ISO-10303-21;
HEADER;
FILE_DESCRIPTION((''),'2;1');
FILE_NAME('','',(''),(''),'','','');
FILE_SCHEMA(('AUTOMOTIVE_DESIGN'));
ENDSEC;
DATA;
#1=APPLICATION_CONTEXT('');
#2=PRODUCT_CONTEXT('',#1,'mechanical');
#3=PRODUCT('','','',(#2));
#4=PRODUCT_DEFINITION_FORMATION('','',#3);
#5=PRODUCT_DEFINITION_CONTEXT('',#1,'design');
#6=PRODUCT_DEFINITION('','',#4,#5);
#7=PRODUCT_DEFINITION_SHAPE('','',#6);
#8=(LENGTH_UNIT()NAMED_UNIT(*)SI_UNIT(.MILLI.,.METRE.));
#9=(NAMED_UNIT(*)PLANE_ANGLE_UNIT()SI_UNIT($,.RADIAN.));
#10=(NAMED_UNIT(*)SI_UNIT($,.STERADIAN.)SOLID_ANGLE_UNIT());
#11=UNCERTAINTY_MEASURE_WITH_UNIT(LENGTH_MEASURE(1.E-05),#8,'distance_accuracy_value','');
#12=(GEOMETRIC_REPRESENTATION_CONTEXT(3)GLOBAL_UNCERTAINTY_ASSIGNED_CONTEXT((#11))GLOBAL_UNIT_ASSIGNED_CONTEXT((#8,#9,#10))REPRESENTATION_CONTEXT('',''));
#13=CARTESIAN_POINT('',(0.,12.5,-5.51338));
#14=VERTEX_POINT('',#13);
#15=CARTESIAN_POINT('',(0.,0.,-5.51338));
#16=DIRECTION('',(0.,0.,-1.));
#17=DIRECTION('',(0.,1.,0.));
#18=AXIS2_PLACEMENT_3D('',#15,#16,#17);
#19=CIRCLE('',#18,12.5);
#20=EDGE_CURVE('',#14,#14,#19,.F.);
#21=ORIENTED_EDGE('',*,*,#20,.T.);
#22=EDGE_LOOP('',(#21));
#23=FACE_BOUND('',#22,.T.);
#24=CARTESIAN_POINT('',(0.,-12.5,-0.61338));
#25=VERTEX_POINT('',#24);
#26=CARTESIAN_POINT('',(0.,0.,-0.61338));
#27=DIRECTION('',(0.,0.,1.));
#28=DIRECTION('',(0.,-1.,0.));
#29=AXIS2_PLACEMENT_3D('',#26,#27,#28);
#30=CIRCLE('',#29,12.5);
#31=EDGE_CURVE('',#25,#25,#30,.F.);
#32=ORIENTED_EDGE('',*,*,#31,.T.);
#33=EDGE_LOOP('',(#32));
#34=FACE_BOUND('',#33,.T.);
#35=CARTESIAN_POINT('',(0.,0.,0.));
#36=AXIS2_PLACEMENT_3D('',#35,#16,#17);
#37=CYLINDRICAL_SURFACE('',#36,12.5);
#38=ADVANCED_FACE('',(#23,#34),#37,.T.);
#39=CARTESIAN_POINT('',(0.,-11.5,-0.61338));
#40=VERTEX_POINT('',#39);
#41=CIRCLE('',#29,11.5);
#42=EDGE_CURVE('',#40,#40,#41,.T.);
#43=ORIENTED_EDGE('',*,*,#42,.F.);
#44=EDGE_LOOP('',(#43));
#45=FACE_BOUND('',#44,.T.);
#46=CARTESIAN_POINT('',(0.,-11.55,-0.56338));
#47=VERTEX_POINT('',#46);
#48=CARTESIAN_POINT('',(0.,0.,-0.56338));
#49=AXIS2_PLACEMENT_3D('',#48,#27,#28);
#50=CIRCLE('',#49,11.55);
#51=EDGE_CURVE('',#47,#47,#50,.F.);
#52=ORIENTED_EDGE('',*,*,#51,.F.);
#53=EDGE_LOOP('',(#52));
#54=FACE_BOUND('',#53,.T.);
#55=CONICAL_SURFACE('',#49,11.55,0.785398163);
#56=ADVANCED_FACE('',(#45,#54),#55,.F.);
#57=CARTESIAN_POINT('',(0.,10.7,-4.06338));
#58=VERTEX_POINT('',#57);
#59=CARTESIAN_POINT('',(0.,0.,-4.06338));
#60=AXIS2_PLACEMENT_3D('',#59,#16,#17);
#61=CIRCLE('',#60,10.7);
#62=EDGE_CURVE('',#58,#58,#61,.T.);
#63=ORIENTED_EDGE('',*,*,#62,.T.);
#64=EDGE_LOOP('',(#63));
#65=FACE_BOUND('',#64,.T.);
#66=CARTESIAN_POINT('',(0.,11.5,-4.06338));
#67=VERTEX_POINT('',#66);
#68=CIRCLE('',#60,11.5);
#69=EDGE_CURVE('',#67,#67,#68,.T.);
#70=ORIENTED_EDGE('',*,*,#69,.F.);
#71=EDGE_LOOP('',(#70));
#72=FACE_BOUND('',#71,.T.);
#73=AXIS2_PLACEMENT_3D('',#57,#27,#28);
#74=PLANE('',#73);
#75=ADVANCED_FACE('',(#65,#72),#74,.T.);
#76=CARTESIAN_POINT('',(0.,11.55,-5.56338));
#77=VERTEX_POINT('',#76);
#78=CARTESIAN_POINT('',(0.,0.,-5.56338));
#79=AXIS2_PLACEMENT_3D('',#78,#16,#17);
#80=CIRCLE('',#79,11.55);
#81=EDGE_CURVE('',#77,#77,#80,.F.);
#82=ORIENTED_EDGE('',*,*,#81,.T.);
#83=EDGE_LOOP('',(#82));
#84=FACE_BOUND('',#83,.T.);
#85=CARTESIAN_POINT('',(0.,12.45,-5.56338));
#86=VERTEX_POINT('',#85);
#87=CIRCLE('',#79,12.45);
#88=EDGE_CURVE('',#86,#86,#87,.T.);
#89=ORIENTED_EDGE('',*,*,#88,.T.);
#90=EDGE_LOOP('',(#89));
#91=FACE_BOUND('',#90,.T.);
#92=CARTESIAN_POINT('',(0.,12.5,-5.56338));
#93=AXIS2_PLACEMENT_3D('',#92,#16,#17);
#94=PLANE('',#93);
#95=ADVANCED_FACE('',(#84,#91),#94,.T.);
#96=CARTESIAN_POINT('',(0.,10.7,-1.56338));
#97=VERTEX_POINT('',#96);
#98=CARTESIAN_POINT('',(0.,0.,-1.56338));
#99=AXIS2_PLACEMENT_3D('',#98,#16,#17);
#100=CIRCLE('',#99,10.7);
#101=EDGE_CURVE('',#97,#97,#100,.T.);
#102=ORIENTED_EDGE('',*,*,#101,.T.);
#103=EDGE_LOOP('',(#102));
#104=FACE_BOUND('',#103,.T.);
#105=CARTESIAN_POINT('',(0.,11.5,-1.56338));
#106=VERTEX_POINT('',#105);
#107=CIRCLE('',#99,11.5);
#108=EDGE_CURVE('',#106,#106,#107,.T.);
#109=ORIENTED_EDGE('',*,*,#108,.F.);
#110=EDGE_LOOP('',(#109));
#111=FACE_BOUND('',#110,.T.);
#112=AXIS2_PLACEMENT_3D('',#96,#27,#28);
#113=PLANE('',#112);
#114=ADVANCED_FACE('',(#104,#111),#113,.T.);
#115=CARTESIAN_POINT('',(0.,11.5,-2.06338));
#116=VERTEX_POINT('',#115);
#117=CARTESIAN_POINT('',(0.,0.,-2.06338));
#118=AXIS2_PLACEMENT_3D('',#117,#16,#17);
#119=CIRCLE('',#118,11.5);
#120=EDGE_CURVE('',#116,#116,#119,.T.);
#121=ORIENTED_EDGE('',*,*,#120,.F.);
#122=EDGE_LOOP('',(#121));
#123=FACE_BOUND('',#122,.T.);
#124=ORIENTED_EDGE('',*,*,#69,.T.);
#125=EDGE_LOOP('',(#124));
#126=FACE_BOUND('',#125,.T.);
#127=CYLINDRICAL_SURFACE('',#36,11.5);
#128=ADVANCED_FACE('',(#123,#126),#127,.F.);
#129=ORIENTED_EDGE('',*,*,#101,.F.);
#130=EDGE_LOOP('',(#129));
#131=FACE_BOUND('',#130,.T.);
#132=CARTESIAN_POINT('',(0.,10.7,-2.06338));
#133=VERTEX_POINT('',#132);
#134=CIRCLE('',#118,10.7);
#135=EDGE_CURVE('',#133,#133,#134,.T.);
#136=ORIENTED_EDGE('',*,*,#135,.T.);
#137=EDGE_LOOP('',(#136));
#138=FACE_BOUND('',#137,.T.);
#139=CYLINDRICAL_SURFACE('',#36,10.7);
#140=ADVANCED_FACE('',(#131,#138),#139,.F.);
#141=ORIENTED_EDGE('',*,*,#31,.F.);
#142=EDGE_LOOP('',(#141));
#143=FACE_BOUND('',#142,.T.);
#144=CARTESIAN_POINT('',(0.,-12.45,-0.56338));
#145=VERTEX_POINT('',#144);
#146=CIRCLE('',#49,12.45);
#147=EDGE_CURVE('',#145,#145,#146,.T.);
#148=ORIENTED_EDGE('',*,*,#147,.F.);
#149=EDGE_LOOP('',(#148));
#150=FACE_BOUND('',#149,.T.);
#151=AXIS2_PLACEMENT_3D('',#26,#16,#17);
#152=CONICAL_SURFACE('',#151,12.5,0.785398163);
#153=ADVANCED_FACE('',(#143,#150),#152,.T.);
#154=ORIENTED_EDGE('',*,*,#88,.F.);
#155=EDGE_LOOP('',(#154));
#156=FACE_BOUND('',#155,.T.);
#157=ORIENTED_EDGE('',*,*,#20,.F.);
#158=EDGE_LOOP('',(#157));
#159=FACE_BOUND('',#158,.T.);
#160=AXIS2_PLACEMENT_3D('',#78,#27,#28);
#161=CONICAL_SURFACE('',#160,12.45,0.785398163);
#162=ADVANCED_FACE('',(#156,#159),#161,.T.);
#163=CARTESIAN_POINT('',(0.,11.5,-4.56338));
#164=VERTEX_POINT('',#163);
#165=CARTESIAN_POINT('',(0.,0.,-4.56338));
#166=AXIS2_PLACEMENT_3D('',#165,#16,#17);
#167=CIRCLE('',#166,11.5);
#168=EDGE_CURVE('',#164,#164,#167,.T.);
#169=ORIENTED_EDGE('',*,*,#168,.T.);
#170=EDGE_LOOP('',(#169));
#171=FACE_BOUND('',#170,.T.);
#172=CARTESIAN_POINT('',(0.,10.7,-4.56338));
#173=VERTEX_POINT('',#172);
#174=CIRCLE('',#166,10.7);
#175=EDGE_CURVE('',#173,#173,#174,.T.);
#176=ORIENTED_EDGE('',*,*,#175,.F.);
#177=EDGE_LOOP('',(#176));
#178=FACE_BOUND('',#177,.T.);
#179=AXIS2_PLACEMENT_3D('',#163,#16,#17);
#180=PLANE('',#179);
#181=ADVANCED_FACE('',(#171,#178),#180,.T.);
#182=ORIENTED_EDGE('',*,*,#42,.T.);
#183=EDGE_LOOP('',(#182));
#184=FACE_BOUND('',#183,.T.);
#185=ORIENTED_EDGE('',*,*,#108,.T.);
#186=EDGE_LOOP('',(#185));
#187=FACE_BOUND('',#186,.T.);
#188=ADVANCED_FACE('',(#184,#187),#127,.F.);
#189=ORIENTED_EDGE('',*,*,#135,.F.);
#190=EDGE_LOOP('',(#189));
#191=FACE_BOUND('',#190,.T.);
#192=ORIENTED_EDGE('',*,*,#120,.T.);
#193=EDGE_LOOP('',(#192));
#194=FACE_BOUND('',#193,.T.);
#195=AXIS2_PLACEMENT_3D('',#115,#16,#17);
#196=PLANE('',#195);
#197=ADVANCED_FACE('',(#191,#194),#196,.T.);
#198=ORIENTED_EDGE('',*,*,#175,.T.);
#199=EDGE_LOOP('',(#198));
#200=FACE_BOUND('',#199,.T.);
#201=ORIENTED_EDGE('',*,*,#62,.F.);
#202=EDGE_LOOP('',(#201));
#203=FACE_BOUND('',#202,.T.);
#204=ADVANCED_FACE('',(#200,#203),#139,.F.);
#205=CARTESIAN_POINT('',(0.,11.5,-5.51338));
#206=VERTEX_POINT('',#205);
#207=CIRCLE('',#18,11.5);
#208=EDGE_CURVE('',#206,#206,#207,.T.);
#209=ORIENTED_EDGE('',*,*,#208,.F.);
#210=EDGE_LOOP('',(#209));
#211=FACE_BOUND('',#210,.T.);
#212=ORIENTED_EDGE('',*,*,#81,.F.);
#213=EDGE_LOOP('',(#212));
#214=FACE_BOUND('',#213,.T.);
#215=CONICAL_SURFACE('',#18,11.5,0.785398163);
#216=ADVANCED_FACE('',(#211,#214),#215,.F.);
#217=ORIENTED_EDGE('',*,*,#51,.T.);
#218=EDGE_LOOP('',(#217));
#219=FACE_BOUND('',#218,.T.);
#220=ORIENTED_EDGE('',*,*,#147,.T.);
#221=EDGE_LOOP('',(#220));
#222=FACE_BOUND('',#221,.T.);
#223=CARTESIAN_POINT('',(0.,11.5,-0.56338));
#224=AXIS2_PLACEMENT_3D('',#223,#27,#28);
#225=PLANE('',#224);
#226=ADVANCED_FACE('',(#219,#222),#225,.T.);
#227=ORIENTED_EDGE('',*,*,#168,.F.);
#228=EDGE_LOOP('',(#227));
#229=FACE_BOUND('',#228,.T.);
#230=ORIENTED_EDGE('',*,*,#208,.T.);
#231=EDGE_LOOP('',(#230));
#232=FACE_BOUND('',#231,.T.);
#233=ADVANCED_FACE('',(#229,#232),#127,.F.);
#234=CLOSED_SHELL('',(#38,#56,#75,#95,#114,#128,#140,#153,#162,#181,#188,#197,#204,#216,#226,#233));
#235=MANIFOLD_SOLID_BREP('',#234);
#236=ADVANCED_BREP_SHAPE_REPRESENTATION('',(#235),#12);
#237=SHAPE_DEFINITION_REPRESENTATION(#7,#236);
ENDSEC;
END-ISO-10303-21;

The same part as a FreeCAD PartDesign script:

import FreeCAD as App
import Part
import Sketcher
from FreeCAD import Vector
Q = App.Units.Quantity


def edges_at(feature, points):
    """Names of the edges that pass closest to the given points."""
    edges = feature.Shape.Edges
    near = lambda p: min(range(len(edges)), key=lambda i: edges[i].distToShape(Part.Vertex(*p))[0])
    return sorted({f"Edge{near(p) + 1}" for p in points})

doc = App.newDocument("Part")
body = doc.addObject("PartDesign::Body", "Body")

# Sketch on YZ plane
sketch1 = body.newObject("Sketcher::SketchObject", "Sketch")
sketch1.AttachmentSupport = (doc.getObject("YZ_Plane"), [""])
sketch1.MapMode = "FlatFace"
sketch1.addGeometry(Part.LineSegment(Vector(12.5, -5.56, 0), Vector(12.5, -0.56, 0)), False)
sketch1.addGeometry(Part.LineSegment(Vector(12.5, -0.56, 0), Vector(11.5, -0.56, 0)), False)
sketch1.addGeometry(Part.LineSegment(Vector(11.5, -0.56, 0), Vector(11.5, -1.56, 0)), False)
sketch1.addGeometry(Part.LineSegment(Vector(11.5, -1.56, 0), Vector(10.7, -1.56, 0)), False)
sketch1.addGeometry(Part.LineSegment(Vector(10.7, -1.56, 0), Vector(10.7, -2.06, 0)), False)
sketch1.addGeometry(Part.LineSegment(Vector(10.7, -2.06, 0), Vector(11.5, -2.06, 0)), False)
sketch1.addGeometry(Part.LineSegment(Vector(11.5, -2.06, 0), Vector(11.5, -4.06, 0)), False)
sketch1.addGeometry(Part.LineSegment(Vector(11.5, -4.06, 0), Vector(10.7, -4.06, 0)), False)
sketch1.addGeometry(Part.LineSegment(Vector(10.7, -4.06, 0), Vector(10.7, -4.56, 0)), False)
sketch1.addGeometry(Part.LineSegment(Vector(10.7, -4.56, 0), Vector(11.5, -4.56, 0)), False)
sketch1.addGeometry(Part.LineSegment(Vector(11.5, -4.56, 0), Vector(11.5, -5.56, 0)), False)
sketch1.addGeometry(Part.LineSegment(Vector(11.5, -5.56, 0), Vector(12.5, -5.56, 0)), False)
sketch1.addConstraint(Sketcher.Constraint("Coincident", 0, 2, 1, 1))
sketch1.addConstraint(Sketcher.Constraint("Coincident", 1, 2, 2, 1))
sketch1.addConstraint(Sketcher.Constraint("Coincident", 2, 2, 3, 1))
sketch1.addConstraint(Sketcher.Constraint("Coincident", 3, 2, 4, 1))
sketch1.addConstraint(Sketcher.Constraint("Coincident", 4, 2, 5, 1))
sketch1.addConstraint(Sketcher.Constraint("Coincident", 5, 2, 6, 1))
sketch1.addConstraint(Sketcher.Constraint("Coincident", 6, 2, 7, 1))
sketch1.addConstraint(Sketcher.Constraint("Coincident", 7, 2, 8, 1))
sketch1.addConstraint(Sketcher.Constraint("Coincident", 8, 2, 9, 1))
sketch1.addConstraint(Sketcher.Constraint("Coincident", 9, 2, 10, 1))
sketch1.addConstraint(Sketcher.Constraint("Coincident", 10, 2, 11, 1))
sketch1.addConstraint(Sketcher.Constraint("Coincident", 11, 2, 0, 1))
sketch1.addConstraint(Sketcher.Constraint("Vertical", 0))
sketch1.addConstraint(Sketcher.Constraint("Horizontal", 1))
sketch1.addConstraint(Sketcher.Constraint("Vertical", 2))
sketch1.addConstraint(Sketcher.Constraint("Horizontal", 3))
sketch1.addConstraint(Sketcher.Constraint("Vertical", 4))
sketch1.addConstraint(Sketcher.Constraint("Horizontal", 5))
sketch1.addConstraint(Sketcher.Constraint("Vertical", 6))
sketch1.addConstraint(Sketcher.Constraint("Horizontal", 7))
sketch1.addConstraint(Sketcher.Constraint("Vertical", 8))
sketch1.addConstraint(Sketcher.Constraint("Horizontal", 9))
sketch1.addConstraint(Sketcher.Constraint("Vertical", 10))
sketch1.addConstraint(Sketcher.Constraint("Horizontal", 11))
sketch1.addConstraint(Sketcher.Constraint("Vertical", 2, 2, 5, 2))
sketch1.addConstraint(Sketcher.Constraint("Vertical", 4, 2, 7, 2))
sketch1.addConstraint(Sketcher.Constraint("Vertical", 6, 2, 9, 2))
sketch1.addConstraint(Sketcher.Constraint("Equal", 11, 2))
sketch1.addConstraint(Sketcher.Constraint("Equal", 4, 8))
sketch1.addConstraint(Sketcher.Constraint("Equal", 2, 10))
sketch1.addConstraint(Sketcher.Constraint("DistanceX", 1, 2, 1, 1, Q("1 mm")))
sketch1.addConstraint(Sketcher.Constraint("DistanceY", 0, 1, 0, 2, Q("5 mm")))
sketch1.addConstraint(Sketcher.Constraint("DistanceY", 6, 2, 6, 1, Q("2 mm")))
sketch1.addConstraint(Sketcher.Constraint("DistanceX", 3, 2, 3, 1, Q("0.8 mm")))
sketch1.addConstraint(Sketcher.Constraint("DistanceX", -1, 1, 0, 2, Q("12.5 mm")))
sketch1.addConstraint(Sketcher.Constraint("DistanceY", 0, 2, -1, 1, Q("0.56338 mm")))
revolution = body.newObject("PartDesign::Revolution", "Revolution")
revolution.Profile = sketch1
revolution.ReferenceAxis = (sketch1, ["V_Axis"])
revolution.Angle = 360
doc.recompute()

chamfer = body.newObject("PartDesign::Chamfer", "Chamfer")
chamfer.Base = (revolution, edges_at(revolution, [
    (0, -11.5, -5.563),
    (0, -12.5, -5.563),
    (0, -12.5, -0.563),
    (0, -11.5, -0.563),
]))
chamfer.Size = 0.05

doc.recompute()
